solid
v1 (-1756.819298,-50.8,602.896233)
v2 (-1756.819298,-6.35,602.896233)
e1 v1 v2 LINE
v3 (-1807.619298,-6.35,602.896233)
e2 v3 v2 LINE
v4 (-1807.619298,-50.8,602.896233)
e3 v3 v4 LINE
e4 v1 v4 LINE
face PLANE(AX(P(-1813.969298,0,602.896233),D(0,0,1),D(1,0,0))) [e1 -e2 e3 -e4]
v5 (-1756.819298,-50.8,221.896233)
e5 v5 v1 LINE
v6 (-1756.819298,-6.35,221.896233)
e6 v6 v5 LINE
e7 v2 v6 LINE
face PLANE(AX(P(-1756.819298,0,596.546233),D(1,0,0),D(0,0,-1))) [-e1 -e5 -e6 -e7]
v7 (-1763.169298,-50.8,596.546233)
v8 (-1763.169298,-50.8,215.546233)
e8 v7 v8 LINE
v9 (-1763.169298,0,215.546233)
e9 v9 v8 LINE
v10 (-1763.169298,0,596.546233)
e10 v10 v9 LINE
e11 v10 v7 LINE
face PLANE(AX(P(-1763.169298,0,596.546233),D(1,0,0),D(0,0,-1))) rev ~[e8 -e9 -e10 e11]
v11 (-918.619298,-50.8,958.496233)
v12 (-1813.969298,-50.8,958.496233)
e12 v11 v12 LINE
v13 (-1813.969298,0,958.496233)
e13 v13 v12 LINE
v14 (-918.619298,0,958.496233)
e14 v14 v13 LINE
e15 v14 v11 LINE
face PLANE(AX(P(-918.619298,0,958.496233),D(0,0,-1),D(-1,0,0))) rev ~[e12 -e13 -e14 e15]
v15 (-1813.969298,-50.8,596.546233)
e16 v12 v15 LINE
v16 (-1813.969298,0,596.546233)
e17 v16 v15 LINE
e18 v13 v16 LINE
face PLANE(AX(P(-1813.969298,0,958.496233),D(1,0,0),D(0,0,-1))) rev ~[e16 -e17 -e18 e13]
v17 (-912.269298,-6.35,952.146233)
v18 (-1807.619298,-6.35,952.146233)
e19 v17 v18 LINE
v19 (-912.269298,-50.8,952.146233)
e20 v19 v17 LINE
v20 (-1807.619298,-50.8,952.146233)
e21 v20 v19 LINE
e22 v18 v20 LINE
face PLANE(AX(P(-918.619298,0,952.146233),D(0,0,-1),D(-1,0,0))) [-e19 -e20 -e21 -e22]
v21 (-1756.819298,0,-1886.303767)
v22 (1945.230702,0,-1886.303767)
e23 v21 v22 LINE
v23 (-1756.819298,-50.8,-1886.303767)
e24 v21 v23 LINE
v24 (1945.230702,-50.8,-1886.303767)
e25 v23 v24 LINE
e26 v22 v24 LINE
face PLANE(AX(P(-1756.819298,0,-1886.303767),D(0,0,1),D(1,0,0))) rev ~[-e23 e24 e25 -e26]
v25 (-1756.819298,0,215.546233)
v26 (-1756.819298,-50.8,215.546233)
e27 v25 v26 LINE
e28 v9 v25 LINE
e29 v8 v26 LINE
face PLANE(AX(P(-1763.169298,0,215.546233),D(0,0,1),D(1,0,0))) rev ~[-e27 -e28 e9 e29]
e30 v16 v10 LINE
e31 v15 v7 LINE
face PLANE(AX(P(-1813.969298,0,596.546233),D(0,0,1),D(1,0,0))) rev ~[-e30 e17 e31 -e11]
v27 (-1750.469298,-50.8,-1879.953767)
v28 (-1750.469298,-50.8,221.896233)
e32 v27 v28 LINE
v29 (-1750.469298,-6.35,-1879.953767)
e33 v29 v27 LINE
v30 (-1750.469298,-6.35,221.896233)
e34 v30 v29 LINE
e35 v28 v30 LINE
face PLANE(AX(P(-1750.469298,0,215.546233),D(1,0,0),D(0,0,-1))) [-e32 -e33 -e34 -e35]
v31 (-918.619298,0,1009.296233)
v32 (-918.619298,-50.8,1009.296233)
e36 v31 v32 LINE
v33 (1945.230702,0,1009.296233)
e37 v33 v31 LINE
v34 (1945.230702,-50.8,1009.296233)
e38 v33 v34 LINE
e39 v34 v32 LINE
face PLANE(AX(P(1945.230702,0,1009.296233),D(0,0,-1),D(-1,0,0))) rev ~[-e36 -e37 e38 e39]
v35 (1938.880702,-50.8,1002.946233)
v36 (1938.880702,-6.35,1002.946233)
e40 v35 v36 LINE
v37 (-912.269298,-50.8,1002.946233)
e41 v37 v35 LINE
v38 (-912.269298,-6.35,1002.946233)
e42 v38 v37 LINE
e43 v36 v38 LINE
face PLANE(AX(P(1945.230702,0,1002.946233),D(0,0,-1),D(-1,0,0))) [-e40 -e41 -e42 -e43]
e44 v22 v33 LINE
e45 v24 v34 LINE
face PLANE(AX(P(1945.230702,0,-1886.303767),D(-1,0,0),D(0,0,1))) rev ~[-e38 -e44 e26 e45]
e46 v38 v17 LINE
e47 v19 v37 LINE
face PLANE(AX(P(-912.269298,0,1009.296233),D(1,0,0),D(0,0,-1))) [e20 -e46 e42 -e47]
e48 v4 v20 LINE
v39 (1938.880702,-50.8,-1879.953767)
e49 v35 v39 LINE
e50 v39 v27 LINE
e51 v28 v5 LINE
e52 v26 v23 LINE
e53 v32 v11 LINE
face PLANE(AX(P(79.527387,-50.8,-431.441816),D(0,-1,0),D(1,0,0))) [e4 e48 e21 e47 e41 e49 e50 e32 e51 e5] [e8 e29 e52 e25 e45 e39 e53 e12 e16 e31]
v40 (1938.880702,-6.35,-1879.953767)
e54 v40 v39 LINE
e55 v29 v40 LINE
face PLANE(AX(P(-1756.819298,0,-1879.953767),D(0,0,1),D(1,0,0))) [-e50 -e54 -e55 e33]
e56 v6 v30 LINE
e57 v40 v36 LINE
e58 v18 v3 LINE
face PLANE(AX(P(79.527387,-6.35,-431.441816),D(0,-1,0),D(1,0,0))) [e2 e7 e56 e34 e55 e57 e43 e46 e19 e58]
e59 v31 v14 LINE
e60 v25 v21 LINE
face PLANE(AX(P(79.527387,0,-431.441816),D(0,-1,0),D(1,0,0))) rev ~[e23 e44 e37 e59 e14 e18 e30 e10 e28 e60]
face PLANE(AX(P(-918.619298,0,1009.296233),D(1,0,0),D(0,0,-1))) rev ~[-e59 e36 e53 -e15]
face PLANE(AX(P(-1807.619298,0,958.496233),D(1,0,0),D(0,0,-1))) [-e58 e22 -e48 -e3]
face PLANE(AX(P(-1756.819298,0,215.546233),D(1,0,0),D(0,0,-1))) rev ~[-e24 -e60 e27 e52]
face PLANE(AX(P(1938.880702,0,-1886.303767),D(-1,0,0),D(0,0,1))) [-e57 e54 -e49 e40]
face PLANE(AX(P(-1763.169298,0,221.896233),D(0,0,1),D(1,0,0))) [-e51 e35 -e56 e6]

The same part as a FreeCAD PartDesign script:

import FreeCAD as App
import Part
import Sketcher
from FreeCAD import Vector
Q = App.Units.Quantity


def faces_at(feature, points):
    """Names of the faces that lie closest to the given points."""
    faces = feature.Shape.Faces
    near = lambda p: min(range(len(faces)), key=lambda i: faces[i].distToShape(Part.Vertex(*p))[0])
    return sorted({f"Face{near(p) + 1}" for p in points})


def add_polygon(sketch, points):
    """Adds a closed chain of lines whose ends are joined by coincident constraints."""
    first, n = sketch.GeometryCount, len(points)
    for a, b in zip(points, points[1:] + points[:1]):
        sketch.addGeometry(Part.LineSegment(App.Vector(*a, 0), App.Vector(*b, 0)), False)
    for i in range(n):
        sketch.addConstraint(Sketcher.Constraint("Coincident", first + i, 2, first + (i + 1) % n, 1))

doc = App.newDocument("Part")
params = doc.addObject("Spreadsheet::Sheet", "Params")
for row, (alias, value) in enumerate([
    ("sketch1_width", "2 in"),
    ("sketch1_height", "15 in"),
    ("sketch1_height2", "114 in"),
    ("sketch1_width2", "112.75 in"),
    ("sketch1_height3", "14.25 in"),
    ("pad1_length", "2 in"),
    ("thickness_wall", "0.25 in"),
], start=1):
    params.set(f"A{row}", alias)
    params.set(f"B{row}", "=" + value)
    params.setAlias(f"B{row}", alias)

body = doc.addObject("PartDesign::Body", "Body")

sketch1 = doc.addObject("Sketcher::SketchObject", "Sketch")
body.addObject(sketch1)
sketch1.AttachmentSupport = (doc.XZ_Plane, [""])
sketch1.MapMode = "FlatFace"
add_polygon(sketch1, [(1945.230702, 1009.296233), (-918.619298, 1009.296233), (-918.619298, 958.496233), (-1813.969298, 958.496233), (-1813.969298, 596.546233), (-1763.169298, 596.546233), (-1763.169298, 215.546233), (-1756.819298, 215.546233), (-1756.819298, -1886.303767), (1945.230702, -1886.303767)])
sketch1.addConstraint([
    Sketcher.Constraint("Horizontal", 0),
    Sketcher.Constraint("Vertical", 1),
    Sketcher.Constraint("Horizontal", 2),
    Sketcher.Constraint("Vertical", 3),
    Sketcher.Constraint("Horizontal", 4),
    Sketcher.Constraint("Vertical", 5),
    Sketcher.Constraint("Horizontal", 6),
    Sketcher.Constraint("Vertical", 7),
    Sketcher.Constraint("Horizontal", 8),
    Sketcher.Constraint("Vertical", 9),
    Sketcher.Constraint("Equal", 4, 1),
    Sketcher.Constraint("DistanceX", 4, 1, 4, 2, Q("2 in")),
    Sketcher.Constraint("DistanceY", 5, 2, 5, 1, Q("15 in")),
    Sketcher.Constraint("DistanceY", 9, 1, 9, 2, Q("114 in")),
    Sketcher.Constraint("DistanceX", 6, 2, 1, 2, Q("33 in")),
    Sketcher.Constraint("DistanceX", 5, 2, 8, 2, Q("146 in")),
    Sketcher.Constraint("DistanceX", 0, 2, 0, 1, Q("112.75 in")),
    Sketcher.Constraint("DistanceY", 3, 2, 3, 1, Q("14.25 in")),
    Sketcher.Constraint("DistanceX", 0, 2, -1, 1, Q("918.619298 mm")),
    Sketcher.Constraint("DistanceY", -1, 1, 0, 2, Q("1009.296233 mm")),
])
sketch1.setExpression("Constraints[21]", "Params.sketch1_width")
sketch1.setExpression("Constraints[22]", "Params.sketch1_height")
sketch1.setExpression("Constraints[23]", "Params.sketch1_height2")
sketch1.setExpression("Constraints[26]", "Params.sketch1_width2")
sketch1.setExpression("Constraints[27]", "Params.sketch1_height3")
pad1 = doc.addObject("PartDesign::Pad", "Pad")
body.addObject(pad1)
pad1.Profile = sketch1
pad1.setExpression("Length", "Params.pad1_length")
doc.recompute()

thickness = doc.addObject("PartDesign::Thickness", "Thickness")
body.addObject(thickness)
thickness.Base = (pad1, faces_at(pad1, [(65.631, -50.8, -438.504)]))
thickness.setExpression("Value", "Params.thickness_wall")
thickness.Reversed = True
thickness.Join = "Intersection"

doc.recompute()
